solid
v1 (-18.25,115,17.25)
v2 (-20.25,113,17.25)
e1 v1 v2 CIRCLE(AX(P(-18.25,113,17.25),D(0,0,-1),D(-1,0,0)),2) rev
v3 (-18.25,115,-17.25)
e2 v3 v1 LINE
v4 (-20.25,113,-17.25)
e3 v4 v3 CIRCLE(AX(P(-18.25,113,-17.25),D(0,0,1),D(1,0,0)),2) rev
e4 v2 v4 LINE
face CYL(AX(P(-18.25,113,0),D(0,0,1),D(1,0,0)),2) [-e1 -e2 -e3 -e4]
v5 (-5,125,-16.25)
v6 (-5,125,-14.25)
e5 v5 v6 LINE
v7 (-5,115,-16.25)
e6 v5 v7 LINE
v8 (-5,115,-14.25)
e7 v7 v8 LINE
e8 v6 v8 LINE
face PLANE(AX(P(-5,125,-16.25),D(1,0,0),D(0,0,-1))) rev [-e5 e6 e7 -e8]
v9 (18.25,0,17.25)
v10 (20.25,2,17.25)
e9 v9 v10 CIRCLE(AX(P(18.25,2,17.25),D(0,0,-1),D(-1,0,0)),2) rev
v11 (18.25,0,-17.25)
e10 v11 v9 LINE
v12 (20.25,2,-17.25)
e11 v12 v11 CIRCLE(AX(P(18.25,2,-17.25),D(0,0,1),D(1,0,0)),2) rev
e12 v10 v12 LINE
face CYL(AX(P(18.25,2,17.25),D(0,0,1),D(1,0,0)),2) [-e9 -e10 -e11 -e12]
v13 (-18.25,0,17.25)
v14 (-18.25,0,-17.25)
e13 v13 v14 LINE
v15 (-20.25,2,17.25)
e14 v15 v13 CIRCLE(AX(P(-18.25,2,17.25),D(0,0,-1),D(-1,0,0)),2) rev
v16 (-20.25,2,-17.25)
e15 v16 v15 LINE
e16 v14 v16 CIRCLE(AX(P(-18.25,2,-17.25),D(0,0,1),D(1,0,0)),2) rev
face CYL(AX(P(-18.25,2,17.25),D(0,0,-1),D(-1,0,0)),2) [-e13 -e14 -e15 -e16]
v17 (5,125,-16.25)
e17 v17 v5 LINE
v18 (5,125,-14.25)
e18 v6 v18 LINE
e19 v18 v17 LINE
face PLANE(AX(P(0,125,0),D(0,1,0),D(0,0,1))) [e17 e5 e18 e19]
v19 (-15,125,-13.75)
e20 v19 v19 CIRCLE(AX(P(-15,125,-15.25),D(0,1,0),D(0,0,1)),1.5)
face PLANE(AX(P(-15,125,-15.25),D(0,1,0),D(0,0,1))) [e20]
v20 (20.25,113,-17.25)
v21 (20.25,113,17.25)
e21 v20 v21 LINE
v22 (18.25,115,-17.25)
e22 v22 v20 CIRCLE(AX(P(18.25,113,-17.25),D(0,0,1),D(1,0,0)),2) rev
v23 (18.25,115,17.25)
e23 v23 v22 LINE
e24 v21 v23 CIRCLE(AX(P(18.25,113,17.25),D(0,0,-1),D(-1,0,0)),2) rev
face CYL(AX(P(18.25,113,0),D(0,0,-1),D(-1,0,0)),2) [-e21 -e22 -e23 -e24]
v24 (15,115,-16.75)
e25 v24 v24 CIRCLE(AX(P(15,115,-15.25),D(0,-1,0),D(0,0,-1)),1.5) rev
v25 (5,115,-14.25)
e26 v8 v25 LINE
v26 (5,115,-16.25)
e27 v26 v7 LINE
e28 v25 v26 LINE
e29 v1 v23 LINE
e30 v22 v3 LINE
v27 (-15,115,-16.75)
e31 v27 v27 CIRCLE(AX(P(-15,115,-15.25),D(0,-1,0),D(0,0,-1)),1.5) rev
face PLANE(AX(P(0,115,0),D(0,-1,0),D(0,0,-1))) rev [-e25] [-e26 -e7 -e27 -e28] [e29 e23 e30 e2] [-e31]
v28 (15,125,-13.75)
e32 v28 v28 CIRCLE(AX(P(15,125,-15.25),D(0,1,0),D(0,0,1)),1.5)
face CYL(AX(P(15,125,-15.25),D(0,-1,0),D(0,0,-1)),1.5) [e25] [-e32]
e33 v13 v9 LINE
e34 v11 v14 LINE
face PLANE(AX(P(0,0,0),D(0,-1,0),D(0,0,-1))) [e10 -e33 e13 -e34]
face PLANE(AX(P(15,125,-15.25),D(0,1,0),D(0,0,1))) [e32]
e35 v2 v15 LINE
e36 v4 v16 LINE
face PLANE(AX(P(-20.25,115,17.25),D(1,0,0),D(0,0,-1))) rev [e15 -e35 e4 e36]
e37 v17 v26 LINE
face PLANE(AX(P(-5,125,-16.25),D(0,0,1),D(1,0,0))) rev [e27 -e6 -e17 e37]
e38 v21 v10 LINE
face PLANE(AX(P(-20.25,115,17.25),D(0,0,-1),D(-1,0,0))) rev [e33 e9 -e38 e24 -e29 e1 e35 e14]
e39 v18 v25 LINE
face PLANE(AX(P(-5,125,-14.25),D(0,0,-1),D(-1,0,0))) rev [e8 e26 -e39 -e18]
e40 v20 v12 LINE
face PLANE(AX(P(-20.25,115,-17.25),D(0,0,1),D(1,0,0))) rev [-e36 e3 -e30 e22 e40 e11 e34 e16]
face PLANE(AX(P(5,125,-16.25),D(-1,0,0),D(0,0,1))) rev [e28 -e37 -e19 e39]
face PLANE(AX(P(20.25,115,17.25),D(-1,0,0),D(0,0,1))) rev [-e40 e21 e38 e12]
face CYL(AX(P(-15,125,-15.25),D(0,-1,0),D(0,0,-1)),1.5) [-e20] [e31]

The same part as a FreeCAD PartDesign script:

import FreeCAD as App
import Part
import Sketcher
Q = App.Units.Quantity


def edges_at(feature, points):
    """Names of the edges that pass closest to the given points."""
    edges = feature.Shape.Edges
    near = lambda p: min(range(len(edges)), key=lambda i: edges[i].distToShape(Part.Vertex(*p))[0])
    return sorted({f"Edge{near(p) + 1}" for p in points})

doc = App.newDocument("Part")
body = doc.addObject("PartDesign::Body", "Body")

sketch1 = doc.addObject("Sketcher::SketchObject", "Sketch")
body.addObject(sketch1)
sketch1.AttachmentSupport = (doc.XZ_Plane, [""])
sketch1.MapMode = "FlatFace"
sketch1.addGeometry(Part.LineSegment(App.Vector(-20, -17, 0), App.Vector(-20, 17, 0)), False)
sketch1.addGeometry(Part.LineSegment(App.Vector(-20, 17, 0), App.Vector(20, 17, 0)), False)
sketch1.addGeometry(Part.LineSegment(App.Vector(20, 17, 0), App.Vector(20, -17, 0)), False)
sketch1.addGeometry(Part.LineSegment(App.Vector(20, -17, 0), App.Vector(-20, -17, 0)), False)
sketch1.addConstraint(Sketcher.Constraint("Coincident", 0, 2, 1, 1))
sketch1.addConstraint(Sketcher.Constraint("Coincident", 1, 2, 2, 1))
sketch1.addConstraint(Sketcher.Constraint("Coincident", 2, 2, 3, 1))
sketch1.addConstraint(Sketcher.Constraint("Coincident", 3, 2, 0, 1))
sketch1.addConstraint(Sketcher.Constraint("Vertical", 0))
sketch1.addConstraint(Sketcher.Constraint("Horizontal", 1))
sketch1.addConstraint(Sketcher.Constraint("Vertical", 2))
sketch1.addConstraint(Sketcher.Constraint("Horizontal", 3))
sketch1.addConstraint(Sketcher.Constraint("Symmetric", 0, 2, 2, 2, -1, 1))
sketch1.addConstraint(Sketcher.Constraint("DistanceX", 1, 1, 1, 2, Q("40.5 mm")))
sketch1.addConstraint(Sketcher.Constraint("DistanceY", 0, 1, 0, 2, Q("34.5 mm")))
pad1 = doc.addObject("PartDesign::Pad", "Pad")
body.addObject(pad1)
pad1.Profile = sketch1
pad1.Length = 115
pad1.Reversed = True

sketch2 = doc.addObject("Sketcher::SketchObject", "Sketch001")
body.addObject(sketch2)
sketch2.AttachmentSupport = (doc.XZ_Plane, [""])
sketch2.MapMode = "FlatFace"
sketch2.AttachmentOffset = App.Placement(App.Vector(0, 0, -115), App.Rotation())
sketch2.addGeometry(Part.Circle(App.Vector(-15, -15.2, 0), App.Vector(0, 0, 1), 1.5), False)
sketch2.addGeometry(Part.Circle(App.Vector(15, -15.2, 0), App.Vector(0, 0, 1), 1.5), False)
sketch2.addGeometry(Part.LineSegment(App.Vector(-5, -16.2, 0), App.Vector(-5, -14.2, 0)), False)
sketch2.addGeometry(Part.LineSegment(App.Vector(-5, -14.2, 0), App.Vector(5, -14.2, 0)), False)
sketch2.addGeometry(Part.LineSegment(App.Vector(5, -14.2, 0), App.Vector(5, -16.2, 0)), False)
sketch2.addGeometry(Part.LineSegment(App.Vector(5, -16.2, 0), App.Vector(-5, -16.2, 0)), False)
sketch2.addConstraint(Sketcher.Constraint("Coincident", 2, 2, 3, 1))
sketch2.addConstraint(Sketcher.Constraint("Coincident", 3, 2, 4, 1))
sketch2.addConstraint(Sketcher.Constraint("Coincident", 4, 2, 5, 1))
sketch2.addConstraint(Sketcher.Constraint("Coincident", 5, 2, 2, 1))
sketch2.addConstraint(Sketcher.Constraint("Vertical", 2))
sketch2.addConstraint(Sketcher.Constraint("Horizontal", 3))
sketch2.addConstraint(Sketcher.Constraint("Vertical", 4))
sketch2.addConstraint(Sketcher.Constraint("Horizontal", 5))
sketch2.addConstraint(Sketcher.Constraint("Equal", 0, 1))
sketch2.addConstraint(Sketcher.Constraint("Symmetric", 0, 3, 1, 3, -2))
sketch2.addConstraint(Sketcher.Constraint("Diameter", 0, Q("3 mm")))
sketch2.addConstraint(Sketcher.Constraint("DistanceX", 3, 1, 3, 2, Q("10 mm")))
sketch2.addConstraint(Sketcher.Constraint("DistanceY", 2, 1, 2, 2, Q("2 mm")))
sketch2.addConstraint(Sketcher.Constraint("DistanceX", 0, 3, -1, 1, Q("15 mm")))
sketch2.addConstraint(Sketcher.Constraint("DistanceX", 2, 2, -1, 1, Q("5 mm")))
sketch2.addConstraint(Sketcher.Constraint("DistanceY", 0, 3, 2, 2, Q("1 mm")))
sketch2.addConstraint(Sketcher.Constraint("DistanceY", 0, 3, -1, 1, Q("15.25 mm")))
pad2 = doc.addObject("PartDesign::Pad", "Pad001")
body.addObject(pad2)
pad2.Profile = sketch2
pad2.Length = 10
pad2.Reversed = True
doc.recompute()

fillet = doc.addObject("PartDesign::Fillet", "Fillet")
body.addObject(fillet)
fillet.Base = (pad2, edges_at(pad2, [
    (-20.25, 115, 0),
    (20.25, 115, 0),
    (-20.25, 0, 0),
    (20.25, 0, 0),
]))
fillet.Radius = 2

doc.recompute()
